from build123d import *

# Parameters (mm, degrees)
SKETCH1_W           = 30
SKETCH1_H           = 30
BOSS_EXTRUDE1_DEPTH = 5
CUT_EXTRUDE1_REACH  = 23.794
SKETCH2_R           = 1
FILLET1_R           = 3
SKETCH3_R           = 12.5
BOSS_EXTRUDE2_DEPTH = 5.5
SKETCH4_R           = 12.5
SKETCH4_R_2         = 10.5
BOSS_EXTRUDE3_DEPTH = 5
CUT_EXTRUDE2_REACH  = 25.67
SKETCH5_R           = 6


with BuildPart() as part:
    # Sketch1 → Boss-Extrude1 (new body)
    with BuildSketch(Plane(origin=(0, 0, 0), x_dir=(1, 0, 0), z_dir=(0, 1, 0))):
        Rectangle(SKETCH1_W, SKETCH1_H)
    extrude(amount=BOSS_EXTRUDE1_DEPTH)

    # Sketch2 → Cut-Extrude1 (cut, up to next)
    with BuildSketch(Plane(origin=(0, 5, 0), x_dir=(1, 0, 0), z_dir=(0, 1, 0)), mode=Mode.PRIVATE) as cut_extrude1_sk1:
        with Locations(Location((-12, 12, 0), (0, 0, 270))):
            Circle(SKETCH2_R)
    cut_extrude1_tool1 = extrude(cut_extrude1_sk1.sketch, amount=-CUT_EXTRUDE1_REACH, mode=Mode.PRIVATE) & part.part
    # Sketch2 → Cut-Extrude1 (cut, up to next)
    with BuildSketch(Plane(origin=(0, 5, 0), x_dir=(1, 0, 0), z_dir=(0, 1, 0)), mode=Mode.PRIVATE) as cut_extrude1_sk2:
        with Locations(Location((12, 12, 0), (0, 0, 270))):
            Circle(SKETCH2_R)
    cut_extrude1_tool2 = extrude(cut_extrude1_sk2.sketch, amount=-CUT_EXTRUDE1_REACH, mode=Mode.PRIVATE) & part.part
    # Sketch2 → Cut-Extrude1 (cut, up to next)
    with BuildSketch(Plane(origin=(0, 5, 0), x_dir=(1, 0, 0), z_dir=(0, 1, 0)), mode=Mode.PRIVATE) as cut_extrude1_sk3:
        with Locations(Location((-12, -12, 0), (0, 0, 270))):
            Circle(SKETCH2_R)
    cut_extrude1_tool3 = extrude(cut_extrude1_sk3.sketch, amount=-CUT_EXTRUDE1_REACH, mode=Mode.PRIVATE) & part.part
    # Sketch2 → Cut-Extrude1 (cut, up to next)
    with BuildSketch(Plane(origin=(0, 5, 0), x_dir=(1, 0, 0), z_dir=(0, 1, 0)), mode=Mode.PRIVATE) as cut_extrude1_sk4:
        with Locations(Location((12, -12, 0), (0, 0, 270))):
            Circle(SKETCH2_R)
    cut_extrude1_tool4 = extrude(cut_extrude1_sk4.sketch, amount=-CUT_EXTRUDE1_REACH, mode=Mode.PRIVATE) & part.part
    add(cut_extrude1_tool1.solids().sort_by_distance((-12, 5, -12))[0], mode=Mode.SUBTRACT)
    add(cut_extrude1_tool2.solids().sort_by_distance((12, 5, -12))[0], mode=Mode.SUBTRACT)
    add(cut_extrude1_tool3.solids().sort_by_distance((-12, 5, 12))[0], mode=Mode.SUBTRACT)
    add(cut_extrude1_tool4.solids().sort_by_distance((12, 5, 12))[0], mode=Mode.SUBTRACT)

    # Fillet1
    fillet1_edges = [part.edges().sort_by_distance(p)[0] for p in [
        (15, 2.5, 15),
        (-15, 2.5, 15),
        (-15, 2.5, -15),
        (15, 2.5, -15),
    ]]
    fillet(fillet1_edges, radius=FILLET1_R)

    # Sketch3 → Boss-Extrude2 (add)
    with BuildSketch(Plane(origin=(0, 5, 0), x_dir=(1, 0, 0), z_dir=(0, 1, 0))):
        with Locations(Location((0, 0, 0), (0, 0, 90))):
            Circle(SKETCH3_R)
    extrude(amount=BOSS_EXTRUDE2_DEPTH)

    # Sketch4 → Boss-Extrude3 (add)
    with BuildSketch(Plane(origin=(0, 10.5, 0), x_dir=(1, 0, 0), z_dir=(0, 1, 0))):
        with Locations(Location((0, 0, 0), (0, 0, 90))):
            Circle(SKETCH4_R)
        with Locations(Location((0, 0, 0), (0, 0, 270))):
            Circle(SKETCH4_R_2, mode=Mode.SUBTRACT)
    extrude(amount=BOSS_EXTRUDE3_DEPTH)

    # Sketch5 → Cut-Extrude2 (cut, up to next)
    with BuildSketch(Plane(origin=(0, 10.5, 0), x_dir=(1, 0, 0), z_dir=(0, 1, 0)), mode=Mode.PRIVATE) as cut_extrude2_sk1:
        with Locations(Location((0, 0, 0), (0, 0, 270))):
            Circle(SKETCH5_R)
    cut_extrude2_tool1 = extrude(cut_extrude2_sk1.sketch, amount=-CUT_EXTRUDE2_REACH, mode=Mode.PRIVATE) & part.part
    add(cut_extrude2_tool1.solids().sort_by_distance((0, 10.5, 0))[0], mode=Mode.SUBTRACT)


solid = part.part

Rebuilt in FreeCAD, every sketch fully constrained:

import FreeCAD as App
import Part
import Sketcher

V = App.Vector


def edges_at(feature, points):
    """Names of the edges that pass closest to the given points."""
    edges = feature.Shape.Edges
    near = lambda p: min(range(len(edges)), key=lambda i: edges[i].distToShape(Part.Vertex(*p))[0])
    return sorted({f"Edge{near(p) + 1}" for p in points})


def add_polygon(sketch, points):
    """Adds a closed chain of lines whose ends are joined by coincident constraints."""
    first, n = sketch.GeometryCount, len(points)
    for a, b in zip(points, points[1:] + points[:1]):
        sketch.addGeometry(Part.LineSegment(App.Vector(*a, 0), App.Vector(*b, 0)), False)
    for i in range(n):
        sketch.addConstraint(Sketcher.Constraint("Coincident", first + i, 2, first + (i + 1) % n, 1))

doc = App.newDocument("Part")
body = doc.addObject("PartDesign::Body", "Body")

# Sketch on XZ plane
sketch1 = body.newObject("Sketcher::SketchObject", "Sketch")
sketch1.AttachmentSupport = (doc.getObject("XZ_Plane"), [""])
sketch1.MapMode = "FlatFace"
add_polygon(sketch1, [(-15, -15), (-15, 15), (15, 15), (15, -15)])  # lines 0-3
sketch1.addConstraint(Sketcher.Constraint("Vertical", 0))
sketch1.addConstraint(Sketcher.Constraint("Horizontal", 1))
sketch1.addConstraint(Sketcher.Constraint("Vertical", 2))
sketch1.addConstraint(Sketcher.Constraint("Horizontal", 3))
sketch1.addConstraint(Sketcher.Constraint("Symmetric", 0, 2, 2, 2, -1, 1))
sketch1.addConstraint(Sketcher.Constraint("Equal", 3, 0))
sketch1.addConstraint(Sketcher.Constraint("DistanceX", 1, 1, 1, 2, 30.0))
pad1 = body.newObject("PartDesign::Pad", "Pad")
pad1.Profile = sketch1
pad1.Length = 5
pad1.Reversed = True

# Sketch on XZ plane
sketch2 = body.newObject("Sketcher::SketchObject", "Sketch001")
sketch2.AttachmentSupport = (doc.getObject("XZ_Plane"), [""])
sketch2.MapMode = "FlatFace"
sketch2.AttachmentOffset = App.Placement(V(0, 0, -5), App.Rotation())
sketch2.addGeometry(Part.Circle(V(-12, -12, 0), V(0, 0, 1), 1), False)
sketch2.addConstraint(Sketcher.Constraint("Diameter", 0, 2.0))
sketch2.addConstraint(Sketcher.Constraint("DistanceX", 0, 3, -1, 1, 12.0))
sketch2.addConstraint(Sketcher.Constraint("DistanceY", 0, 3, -1, 1, 12.0))
pocket1 = body.newObject("PartDesign::Pocket", "Pocket")
pocket1.Profile = sketch2
pocket1.Type = "UpToFirst"
pocket1.Reversed = True

# Sketch on XZ plane
sketch3 = body.newObject("Sketcher::SketchObject", "Sketch002")
sketch3.AttachmentSupport = (doc.getObject("XZ_Plane"), [""])
sketch3.MapMode = "FlatFace"
sketch3.AttachmentOffset = App.Placement(V(0, 0, -5), App.Rotation())
sketch3.addGeometry(Part.Circle(V(12, -12, 0), V(0, 0, 1), 1), False)
sketch3.addConstraint(Sketcher.Constraint("Diameter", 0, 2.0))
sketch3.addConstraint(Sketcher.Constraint("DistanceX", -1, 1, 0, 3, 12.0))
sketch3.addConstraint(Sketcher.Constraint("DistanceY", 0, 3, -1, 1, 12.0))
pocket2 = body.newObject("PartDesign::Pocket", "Pocket001")
pocket2.Profile = sketch3
pocket2.Type = "UpToFirst"
pocket2.Reversed = True

# Sketch on XZ plane
sketch4 = body.newObject("Sketcher::SketchObject", "Sketch003")
sketch4.AttachmentSupport = (doc.getObject("XZ_Plane"), [""])
sketch4.MapMode = "FlatFace"
sketch4.AttachmentOffset = App.Placement(V(0, 0, -5), App.Rotation())
sketch4.addGeometry(Part.Circle(V(-12, 12, 0), V(0, 0, 1), 1), False)
sketch4.addConstraint(Sketcher.Constraint("Diameter", 0, 2.0))
sketch4.addConstraint(Sketcher.Constraint("DistanceX", 0, 3, -1, 1, 12.0))
sketch4.addConstraint(Sketcher.Constraint("DistanceY", -1, 1, 0, 3, 12.0))
pocket3 = body.newObject("PartDesign::Pocket", "Pocket002")
pocket3.Profile = sketch4
pocket3.Type = "UpToFirst"
pocket3.Reversed = True

# Sketch on XZ plane
sketch5 = body.newObject("Sketcher::SketchObject", "Sketch004")
sketch5.AttachmentSupport = (doc.getObject("XZ_Plane"), [""])
sketch5.MapMode = "FlatFace"
sketch5.AttachmentOffset = App.Placement(V(0, 0, -5), App.Rotation())
sketch5.addGeometry(Part.Circle(V(12, 12, 0), V(0, 0, 1), 1), False)
sketch5.addConstraint(Sketcher.Constraint("Diameter", 0, 2.0))
sketch5.addConstraint(Sketcher.Constraint("DistanceX", -1, 1, 0, 3, 12.0))
sketch5.addConstraint(Sketcher.Constraint("DistanceY", -1, 1, 0, 3, 12.0))
pocket4 = body.newObject("PartDesign::Pocket", "Pocket003")
pocket4.Profile = sketch5
pocket4.Type = "UpToFirst"
pocket4.Reversed = True
doc.recompute()

fillet = body.newObject("PartDesign::Fillet", "Fillet")
fillet.Base = (pocket4, edges_at(pocket4, [
    (15, 2.5, 15),
    (-15, 2.5, 15),
    (-15, 2.5, -15),
    (15, 2.5, -15),
]))
fillet.Radius = 3

# Sketch on XZ plane
sketch6 = body.newObject("Sketcher::SketchObject", "Sketch005")
sketch6.AttachmentSupport = (doc.getObject("XZ_Plane"), [""])
sketch6.MapMode = "FlatFace"
sketch6.AttachmentOffset = App.Placement(V(0, 0, -5), App.Rotation())
sketch6.addGeometry(Part.Circle(V(0, 0, 0), V(0, 0, 1), 12), False)
sketch6.addConstraint(Sketcher.Constraint("Coincident", 0, 3, -1, 1))
sketch6.addConstraint(Sketcher.Constraint("Diameter", 0, 25.0))
pad2 = body.newObject("PartDesign::Pad", "Pad001")
pad2.Profile = sketch6
pad2.Length = 5.5
pad2.Reversed = True

# Sketch on XZ plane
sketch7 = body.newObject("Sketcher::SketchObject", "Sketch006")
sketch7.AttachmentSupport = (doc.getObject("XZ_Plane"), [""])
sketch7.MapMode = "FlatFace"
sketch7.AttachmentOffset = App.Placement(V(0, 0, -10.5), App.Rotation())
sketch7.addGeometry(Part.Circle(V(0, 0, 0), V(0, 0, 1), 12), False)
sketch7.addGeometry(Part.Circle(V(0, 0, 0), V(0, 0, 1), 10), False)
sketch7.addConstraint(Sketcher.Constraint("Coincident", 0, 3, -1, 1))
sketch7.addConstraint(Sketcher.Constraint("Coincident", 1, 3, -1, 1))
sketch7.addConstraint(Sketcher.Constraint("Diameter", 0, 25.0))
sketch7.addConstraint(Sketcher.Constraint("Diameter", 1, 21.0))
pad3 = body.newObject("PartDesign::Pad", "Pad002")
pad3.Profile = sketch7
pad3.Length = 5
pad3.Reversed = True

# Sketch on XZ plane
sketch8 = body.newObject("Sketcher::SketchObject", "Sketch007")
sketch8.AttachmentSupport = (doc.getObject("XZ_Plane"), [""])
sketch8.MapMode = "FlatFace"
sketch8.AttachmentOffset = App.Placement(V(0, 0, -10.5), App.Rotation())
sketch8.addGeometry(Part.Circle(V(0, 0, 0), V(0, 0, 1), 6), False)
sketch8.addConstraint(Sketcher.Constraint("Coincident", 0, 3, -1, 1))
sketch8.addConstraint(Sketcher.Constraint("Diameter", 0, 12.0))
pocket5 = body.newObject("PartDesign::Pocket", "Pocket004")
pocket5.Profile = sketch8
pocket5.Type = "UpToFirst"
pocket5.Reversed = True

doc.recompute()
